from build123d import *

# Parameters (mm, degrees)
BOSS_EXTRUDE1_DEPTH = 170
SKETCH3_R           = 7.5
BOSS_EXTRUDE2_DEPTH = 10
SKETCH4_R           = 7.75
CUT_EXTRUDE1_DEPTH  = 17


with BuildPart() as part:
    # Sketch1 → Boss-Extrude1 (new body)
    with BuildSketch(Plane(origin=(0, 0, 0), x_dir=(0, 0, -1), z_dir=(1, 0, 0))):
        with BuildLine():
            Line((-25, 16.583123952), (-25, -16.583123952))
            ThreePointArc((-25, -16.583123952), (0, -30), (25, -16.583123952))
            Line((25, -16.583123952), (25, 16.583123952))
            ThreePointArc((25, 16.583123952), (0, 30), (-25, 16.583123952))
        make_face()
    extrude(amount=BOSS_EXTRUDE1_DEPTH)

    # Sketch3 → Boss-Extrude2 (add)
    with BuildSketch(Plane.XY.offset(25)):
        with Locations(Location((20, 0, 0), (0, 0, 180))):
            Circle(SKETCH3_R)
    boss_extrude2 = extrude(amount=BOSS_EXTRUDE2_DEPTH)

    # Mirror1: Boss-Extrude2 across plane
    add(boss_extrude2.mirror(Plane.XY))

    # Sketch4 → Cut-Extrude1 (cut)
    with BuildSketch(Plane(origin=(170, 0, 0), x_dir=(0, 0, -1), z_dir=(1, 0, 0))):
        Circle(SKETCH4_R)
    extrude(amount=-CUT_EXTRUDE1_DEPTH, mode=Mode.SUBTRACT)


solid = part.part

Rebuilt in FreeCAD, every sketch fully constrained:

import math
import FreeCAD as App
import Part
import Sketcher

doc = App.newDocument("Part")
body = doc.addObject("PartDesign::Body", "Body")

sketch1 = body.newObject("Sketcher::SketchObject", "Sketch")
sketch1.AttachmentSupport = (doc.getObject("YZ_Plane"), [""])
sketch1.MapMode = "FlatFace"
sketch1.addGeometry([
    Part.LineSegment(App.Vector(16.583124, 25, 0), App.Vector(-16.583124, 25, 0)),
    Part.ArcOfCircle(Part.Circle(App.Vector(0, 0, 0), App.Vector(0, 0, 1), 30), math.radians(123.55731), math.radians(236.44269)),
    Part.LineSegment(App.Vector(-16.583124, -25, 0), App.Vector(16.583124, -25, 0)),
    Part.ArcOfCircle(Part.Circle(App.Vector(0, 0, 0), App.Vector(0, 0, 1), 30), math.radians(-56.44269), math.radians(56.44269)),
], False)
sketch1.addConstraint([
    Sketcher.Constraint("Coincident", 0, 2, 1, 1),
    Sketcher.Constraint("Coincident", 1, 2, 2, 1),
    Sketcher.Constraint("Coincident", 2, 2, 3, 1),
    Sketcher.Constraint("Coincident", 3, 2, 0, 1),
    Sketcher.Constraint("Horizontal", 0),
    Sketcher.Constraint("Horizontal", 2),
    Sketcher.Constraint("Coincident", 1, 3, -1, 1),
    Sketcher.Constraint("Coincident", 3, 3, -1, 1),
    Sketcher.Constraint("Equal", 1, 3),
    Sketcher.Constraint("Vertical", 0, 2, 1, 2),
    Sketcher.Constraint("Radius", 1, 30.0),
    Sketcher.Constraint("DistanceY", -1, 1, 0, 2, 25.0),
])
pad1 = body.newObject("PartDesign::Pad", "Pad")
pad1.Profile = sketch1
pad1.Length = 170

sketch2 = body.newObject("Sketcher::SketchObject", "Sketch001")
sketch2.AttachmentSupport = (doc.getObject("XY_Plane"), [""])
sketch2.MapMode = "FlatFace"
sketch2.AttachmentOffset = App.Placement(App.Vector(0, 0, 25), App.Rotation())
sketch2.addGeometry(Part.Circle(App.Vector(20, 0, 0), App.Vector(0, 0, 1), 7.5), False)
sketch2.addConstraint([
    Sketcher.Constraint("PointOnObject", 0, 3, -1),
    Sketcher.Constraint("Diameter", 0, 15.0),
    Sketcher.Constraint("DistanceX", -1, 1, 0, 3, 20.0),
])
pad2 = body.newObject("PartDesign::Pad", "Pad001")
pad2.Profile = sketch2
pad2.Length = 10
doc.recompute()

mirrored = body.newObject("PartDesign::Mirrored", "Mirrored")
mirrored.Originals = [pad2]
mirrored.MirrorPlane = (doc.getObject("XY_Plane"), [""])
body.Tip = mirrored

sketch3 = body.newObject("Sketcher::SketchObject", "Sketch002")
sketch3.AttachmentSupport = (doc.getObject("YZ_Plane"), [""])
sketch3.MapMode = "FlatFace"
sketch3.AttachmentOffset = App.Placement(App.Vector(0, 0, 170), App.Rotation())
sketch3.addGeometry(Part.Circle(App.Vector(0, 0, 0), App.Vector(0, 0, 1), 7.75), False)
sketch3.addConstraint([
    Sketcher.Constraint("Coincident", 0, 3, -1, 1),
    Sketcher.Constraint("Diameter", 0, 15.5),
])
pocket1 = body.newObject("PartDesign::Pocket", "Pocket")
pocket1.Profile = sketch3
pocket1.Length = 17

doc.recompute()
